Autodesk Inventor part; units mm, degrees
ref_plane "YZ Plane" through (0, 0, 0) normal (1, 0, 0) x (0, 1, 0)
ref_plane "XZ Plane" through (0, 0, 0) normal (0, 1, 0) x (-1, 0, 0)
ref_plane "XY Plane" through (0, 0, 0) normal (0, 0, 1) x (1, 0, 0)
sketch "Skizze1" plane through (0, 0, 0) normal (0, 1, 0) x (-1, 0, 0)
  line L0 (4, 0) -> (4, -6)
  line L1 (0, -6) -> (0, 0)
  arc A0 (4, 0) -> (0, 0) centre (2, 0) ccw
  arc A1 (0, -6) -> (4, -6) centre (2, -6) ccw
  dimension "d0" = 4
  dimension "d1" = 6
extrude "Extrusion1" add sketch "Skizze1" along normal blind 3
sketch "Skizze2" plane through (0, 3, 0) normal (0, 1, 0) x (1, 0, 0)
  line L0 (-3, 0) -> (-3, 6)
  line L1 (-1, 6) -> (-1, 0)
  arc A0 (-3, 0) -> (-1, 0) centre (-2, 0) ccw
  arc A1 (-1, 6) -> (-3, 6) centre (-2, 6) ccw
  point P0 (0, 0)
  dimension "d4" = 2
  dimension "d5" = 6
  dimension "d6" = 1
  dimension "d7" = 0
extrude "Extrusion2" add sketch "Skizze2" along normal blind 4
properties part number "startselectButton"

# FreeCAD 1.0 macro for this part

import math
import FreeCAD as App
import Part
import Sketcher
from FreeCAD import Vector

doc = App.newDocument("Part")
params = doc.addObject("Spreadsheet::Sheet", "Params")
for row, (alias, value) in enumerate([
    ("sketch1_radius", "2 mm"),
    ("sketch1_height", "6 mm"),
    ("pad1_length", "3 mm"),
    ("sketch2_radius", "1 mm"),
    ("sketch2_height", "6 mm"),
    ("pad2_length", "4 mm"),
], start=1):
    params.set(f"A{row}", alias)
    params.set(f"B{row}", "=" + value)
    params.setAlias(f"B{row}", alias)

body = doc.addObject("PartDesign::Body", "Body")

# Sketch on XZ plane
sketch1 = body.newObject("Sketcher::SketchObject", "Sketch")
sketch1.AttachmentSupport = (doc.getObject("XZ_Plane"), [""])
sketch1.MapMode = "FlatFace"
sketch1.addGeometry([
    Part.LineSegment(Vector(-4, -6, 0), Vector(-4, 0, 0)),
    Part.ArcOfCircle(Part.Circle(Vector(-2, 0, 0), Vector(0, 0, 1), 2), math.radians(0), math.radians(180)),
    Part.LineSegment(Vector(0, 0, 0), Vector(0, -6, 0)),
    Part.ArcOfCircle(Part.Circle(Vector(-2, -6, 0), Vector(0, 0, 1), 2), math.radians(180), math.radians(360)),
], False)
sketch1.addConstraint([
    Sketcher.Constraint("Tangent", 0, 2, 1, 2),
    Sketcher.Constraint("Tangent", 1, 1, 2, 1),
    Sketcher.Constraint("Tangent", 2, 2, 3, 2),
    Sketcher.Constraint("Tangent", 3, 1, 0, 1),
    Sketcher.Constraint("Vertical", 0),
    Sketcher.Constraint("Vertical", 2),
    Sketcher.Constraint("Coincident", 1, 1, -1, 1),
    Sketcher.Constraint("Radius", 1, 2.0),
    Sketcher.Constraint("DistanceY", 0, 1, 0, 2, 6.0),
])
sketch1.setExpression("Constraints[7]", "Params.sketch1_radius")
sketch1.setExpression("Constraints[8]", "Params.sketch1_height")
pad1 = body.newObject("PartDesign::Pad", "Pad")
pad1.Profile = sketch1
pad1.setExpression("Length", "Params.pad1_length")
pad1.Reversed = True

# Sketch on XZ plane
sketch2 = body.newObject("Sketcher::SketchObject", "Sketch001")
sketch2.AttachmentSupport = (doc.getObject("XZ_Plane"), [""])
sketch2.MapMode = "FlatFace"
sketch2.AttachmentOffset = App.Placement(Vector(0, 0, -3), App.Rotation())
sketch2.addGeometry([
    Part.LineSegment(Vector(-3, -6, 0), Vector(-3, 0, 0)),
    Part.ArcOfCircle(Part.Circle(Vector(-2, 0, 0), Vector(0, 0, 1), 1), math.radians(0), math.radians(180)),
    Part.LineSegment(Vector(-1, 0, 0), Vector(-1, -6, 0)),
    Part.ArcOfCircle(Part.Circle(Vector(-2, -6, 0), Vector(0, 0, 1), 1), math.radians(180), math.radians(360)),
], False)
sketch2.addConstraint([
    Sketcher.Constraint("Tangent", 0, 2, 1, 2),
    Sketcher.Constraint("Tangent", 1, 1, 2, 1),
    Sketcher.Constraint("Tangent", 2, 2, 3, 2),
    Sketcher.Constraint("Tangent", 3, 1, 0, 1),
    Sketcher.Constraint("Vertical", 0),
    Sketcher.Constraint("Vertical", 2),
    Sketcher.Constraint("PointOnObject", 1, 3, -1),
    Sketcher.Constraint("Radius", 1, 1.0),
    Sketcher.Constraint("DistanceY", 0, 1, 0, 2, 6.0),
    Sketcher.Constraint("DistanceX", 1, 3, -1, 1, 2.0),
])
sketch2.setExpression("Constraints[7]", "Params.sketch2_radius")
sketch2.setExpression("Constraints[8]", "Params.sketch2_height")
pad2 = body.newObject("PartDesign::Pad", "Pad001")
pad2.Profile = sketch2
pad2.setExpression("Length", "Params.pad2_length")
pad2.Reversed = True

doc.recompute()
